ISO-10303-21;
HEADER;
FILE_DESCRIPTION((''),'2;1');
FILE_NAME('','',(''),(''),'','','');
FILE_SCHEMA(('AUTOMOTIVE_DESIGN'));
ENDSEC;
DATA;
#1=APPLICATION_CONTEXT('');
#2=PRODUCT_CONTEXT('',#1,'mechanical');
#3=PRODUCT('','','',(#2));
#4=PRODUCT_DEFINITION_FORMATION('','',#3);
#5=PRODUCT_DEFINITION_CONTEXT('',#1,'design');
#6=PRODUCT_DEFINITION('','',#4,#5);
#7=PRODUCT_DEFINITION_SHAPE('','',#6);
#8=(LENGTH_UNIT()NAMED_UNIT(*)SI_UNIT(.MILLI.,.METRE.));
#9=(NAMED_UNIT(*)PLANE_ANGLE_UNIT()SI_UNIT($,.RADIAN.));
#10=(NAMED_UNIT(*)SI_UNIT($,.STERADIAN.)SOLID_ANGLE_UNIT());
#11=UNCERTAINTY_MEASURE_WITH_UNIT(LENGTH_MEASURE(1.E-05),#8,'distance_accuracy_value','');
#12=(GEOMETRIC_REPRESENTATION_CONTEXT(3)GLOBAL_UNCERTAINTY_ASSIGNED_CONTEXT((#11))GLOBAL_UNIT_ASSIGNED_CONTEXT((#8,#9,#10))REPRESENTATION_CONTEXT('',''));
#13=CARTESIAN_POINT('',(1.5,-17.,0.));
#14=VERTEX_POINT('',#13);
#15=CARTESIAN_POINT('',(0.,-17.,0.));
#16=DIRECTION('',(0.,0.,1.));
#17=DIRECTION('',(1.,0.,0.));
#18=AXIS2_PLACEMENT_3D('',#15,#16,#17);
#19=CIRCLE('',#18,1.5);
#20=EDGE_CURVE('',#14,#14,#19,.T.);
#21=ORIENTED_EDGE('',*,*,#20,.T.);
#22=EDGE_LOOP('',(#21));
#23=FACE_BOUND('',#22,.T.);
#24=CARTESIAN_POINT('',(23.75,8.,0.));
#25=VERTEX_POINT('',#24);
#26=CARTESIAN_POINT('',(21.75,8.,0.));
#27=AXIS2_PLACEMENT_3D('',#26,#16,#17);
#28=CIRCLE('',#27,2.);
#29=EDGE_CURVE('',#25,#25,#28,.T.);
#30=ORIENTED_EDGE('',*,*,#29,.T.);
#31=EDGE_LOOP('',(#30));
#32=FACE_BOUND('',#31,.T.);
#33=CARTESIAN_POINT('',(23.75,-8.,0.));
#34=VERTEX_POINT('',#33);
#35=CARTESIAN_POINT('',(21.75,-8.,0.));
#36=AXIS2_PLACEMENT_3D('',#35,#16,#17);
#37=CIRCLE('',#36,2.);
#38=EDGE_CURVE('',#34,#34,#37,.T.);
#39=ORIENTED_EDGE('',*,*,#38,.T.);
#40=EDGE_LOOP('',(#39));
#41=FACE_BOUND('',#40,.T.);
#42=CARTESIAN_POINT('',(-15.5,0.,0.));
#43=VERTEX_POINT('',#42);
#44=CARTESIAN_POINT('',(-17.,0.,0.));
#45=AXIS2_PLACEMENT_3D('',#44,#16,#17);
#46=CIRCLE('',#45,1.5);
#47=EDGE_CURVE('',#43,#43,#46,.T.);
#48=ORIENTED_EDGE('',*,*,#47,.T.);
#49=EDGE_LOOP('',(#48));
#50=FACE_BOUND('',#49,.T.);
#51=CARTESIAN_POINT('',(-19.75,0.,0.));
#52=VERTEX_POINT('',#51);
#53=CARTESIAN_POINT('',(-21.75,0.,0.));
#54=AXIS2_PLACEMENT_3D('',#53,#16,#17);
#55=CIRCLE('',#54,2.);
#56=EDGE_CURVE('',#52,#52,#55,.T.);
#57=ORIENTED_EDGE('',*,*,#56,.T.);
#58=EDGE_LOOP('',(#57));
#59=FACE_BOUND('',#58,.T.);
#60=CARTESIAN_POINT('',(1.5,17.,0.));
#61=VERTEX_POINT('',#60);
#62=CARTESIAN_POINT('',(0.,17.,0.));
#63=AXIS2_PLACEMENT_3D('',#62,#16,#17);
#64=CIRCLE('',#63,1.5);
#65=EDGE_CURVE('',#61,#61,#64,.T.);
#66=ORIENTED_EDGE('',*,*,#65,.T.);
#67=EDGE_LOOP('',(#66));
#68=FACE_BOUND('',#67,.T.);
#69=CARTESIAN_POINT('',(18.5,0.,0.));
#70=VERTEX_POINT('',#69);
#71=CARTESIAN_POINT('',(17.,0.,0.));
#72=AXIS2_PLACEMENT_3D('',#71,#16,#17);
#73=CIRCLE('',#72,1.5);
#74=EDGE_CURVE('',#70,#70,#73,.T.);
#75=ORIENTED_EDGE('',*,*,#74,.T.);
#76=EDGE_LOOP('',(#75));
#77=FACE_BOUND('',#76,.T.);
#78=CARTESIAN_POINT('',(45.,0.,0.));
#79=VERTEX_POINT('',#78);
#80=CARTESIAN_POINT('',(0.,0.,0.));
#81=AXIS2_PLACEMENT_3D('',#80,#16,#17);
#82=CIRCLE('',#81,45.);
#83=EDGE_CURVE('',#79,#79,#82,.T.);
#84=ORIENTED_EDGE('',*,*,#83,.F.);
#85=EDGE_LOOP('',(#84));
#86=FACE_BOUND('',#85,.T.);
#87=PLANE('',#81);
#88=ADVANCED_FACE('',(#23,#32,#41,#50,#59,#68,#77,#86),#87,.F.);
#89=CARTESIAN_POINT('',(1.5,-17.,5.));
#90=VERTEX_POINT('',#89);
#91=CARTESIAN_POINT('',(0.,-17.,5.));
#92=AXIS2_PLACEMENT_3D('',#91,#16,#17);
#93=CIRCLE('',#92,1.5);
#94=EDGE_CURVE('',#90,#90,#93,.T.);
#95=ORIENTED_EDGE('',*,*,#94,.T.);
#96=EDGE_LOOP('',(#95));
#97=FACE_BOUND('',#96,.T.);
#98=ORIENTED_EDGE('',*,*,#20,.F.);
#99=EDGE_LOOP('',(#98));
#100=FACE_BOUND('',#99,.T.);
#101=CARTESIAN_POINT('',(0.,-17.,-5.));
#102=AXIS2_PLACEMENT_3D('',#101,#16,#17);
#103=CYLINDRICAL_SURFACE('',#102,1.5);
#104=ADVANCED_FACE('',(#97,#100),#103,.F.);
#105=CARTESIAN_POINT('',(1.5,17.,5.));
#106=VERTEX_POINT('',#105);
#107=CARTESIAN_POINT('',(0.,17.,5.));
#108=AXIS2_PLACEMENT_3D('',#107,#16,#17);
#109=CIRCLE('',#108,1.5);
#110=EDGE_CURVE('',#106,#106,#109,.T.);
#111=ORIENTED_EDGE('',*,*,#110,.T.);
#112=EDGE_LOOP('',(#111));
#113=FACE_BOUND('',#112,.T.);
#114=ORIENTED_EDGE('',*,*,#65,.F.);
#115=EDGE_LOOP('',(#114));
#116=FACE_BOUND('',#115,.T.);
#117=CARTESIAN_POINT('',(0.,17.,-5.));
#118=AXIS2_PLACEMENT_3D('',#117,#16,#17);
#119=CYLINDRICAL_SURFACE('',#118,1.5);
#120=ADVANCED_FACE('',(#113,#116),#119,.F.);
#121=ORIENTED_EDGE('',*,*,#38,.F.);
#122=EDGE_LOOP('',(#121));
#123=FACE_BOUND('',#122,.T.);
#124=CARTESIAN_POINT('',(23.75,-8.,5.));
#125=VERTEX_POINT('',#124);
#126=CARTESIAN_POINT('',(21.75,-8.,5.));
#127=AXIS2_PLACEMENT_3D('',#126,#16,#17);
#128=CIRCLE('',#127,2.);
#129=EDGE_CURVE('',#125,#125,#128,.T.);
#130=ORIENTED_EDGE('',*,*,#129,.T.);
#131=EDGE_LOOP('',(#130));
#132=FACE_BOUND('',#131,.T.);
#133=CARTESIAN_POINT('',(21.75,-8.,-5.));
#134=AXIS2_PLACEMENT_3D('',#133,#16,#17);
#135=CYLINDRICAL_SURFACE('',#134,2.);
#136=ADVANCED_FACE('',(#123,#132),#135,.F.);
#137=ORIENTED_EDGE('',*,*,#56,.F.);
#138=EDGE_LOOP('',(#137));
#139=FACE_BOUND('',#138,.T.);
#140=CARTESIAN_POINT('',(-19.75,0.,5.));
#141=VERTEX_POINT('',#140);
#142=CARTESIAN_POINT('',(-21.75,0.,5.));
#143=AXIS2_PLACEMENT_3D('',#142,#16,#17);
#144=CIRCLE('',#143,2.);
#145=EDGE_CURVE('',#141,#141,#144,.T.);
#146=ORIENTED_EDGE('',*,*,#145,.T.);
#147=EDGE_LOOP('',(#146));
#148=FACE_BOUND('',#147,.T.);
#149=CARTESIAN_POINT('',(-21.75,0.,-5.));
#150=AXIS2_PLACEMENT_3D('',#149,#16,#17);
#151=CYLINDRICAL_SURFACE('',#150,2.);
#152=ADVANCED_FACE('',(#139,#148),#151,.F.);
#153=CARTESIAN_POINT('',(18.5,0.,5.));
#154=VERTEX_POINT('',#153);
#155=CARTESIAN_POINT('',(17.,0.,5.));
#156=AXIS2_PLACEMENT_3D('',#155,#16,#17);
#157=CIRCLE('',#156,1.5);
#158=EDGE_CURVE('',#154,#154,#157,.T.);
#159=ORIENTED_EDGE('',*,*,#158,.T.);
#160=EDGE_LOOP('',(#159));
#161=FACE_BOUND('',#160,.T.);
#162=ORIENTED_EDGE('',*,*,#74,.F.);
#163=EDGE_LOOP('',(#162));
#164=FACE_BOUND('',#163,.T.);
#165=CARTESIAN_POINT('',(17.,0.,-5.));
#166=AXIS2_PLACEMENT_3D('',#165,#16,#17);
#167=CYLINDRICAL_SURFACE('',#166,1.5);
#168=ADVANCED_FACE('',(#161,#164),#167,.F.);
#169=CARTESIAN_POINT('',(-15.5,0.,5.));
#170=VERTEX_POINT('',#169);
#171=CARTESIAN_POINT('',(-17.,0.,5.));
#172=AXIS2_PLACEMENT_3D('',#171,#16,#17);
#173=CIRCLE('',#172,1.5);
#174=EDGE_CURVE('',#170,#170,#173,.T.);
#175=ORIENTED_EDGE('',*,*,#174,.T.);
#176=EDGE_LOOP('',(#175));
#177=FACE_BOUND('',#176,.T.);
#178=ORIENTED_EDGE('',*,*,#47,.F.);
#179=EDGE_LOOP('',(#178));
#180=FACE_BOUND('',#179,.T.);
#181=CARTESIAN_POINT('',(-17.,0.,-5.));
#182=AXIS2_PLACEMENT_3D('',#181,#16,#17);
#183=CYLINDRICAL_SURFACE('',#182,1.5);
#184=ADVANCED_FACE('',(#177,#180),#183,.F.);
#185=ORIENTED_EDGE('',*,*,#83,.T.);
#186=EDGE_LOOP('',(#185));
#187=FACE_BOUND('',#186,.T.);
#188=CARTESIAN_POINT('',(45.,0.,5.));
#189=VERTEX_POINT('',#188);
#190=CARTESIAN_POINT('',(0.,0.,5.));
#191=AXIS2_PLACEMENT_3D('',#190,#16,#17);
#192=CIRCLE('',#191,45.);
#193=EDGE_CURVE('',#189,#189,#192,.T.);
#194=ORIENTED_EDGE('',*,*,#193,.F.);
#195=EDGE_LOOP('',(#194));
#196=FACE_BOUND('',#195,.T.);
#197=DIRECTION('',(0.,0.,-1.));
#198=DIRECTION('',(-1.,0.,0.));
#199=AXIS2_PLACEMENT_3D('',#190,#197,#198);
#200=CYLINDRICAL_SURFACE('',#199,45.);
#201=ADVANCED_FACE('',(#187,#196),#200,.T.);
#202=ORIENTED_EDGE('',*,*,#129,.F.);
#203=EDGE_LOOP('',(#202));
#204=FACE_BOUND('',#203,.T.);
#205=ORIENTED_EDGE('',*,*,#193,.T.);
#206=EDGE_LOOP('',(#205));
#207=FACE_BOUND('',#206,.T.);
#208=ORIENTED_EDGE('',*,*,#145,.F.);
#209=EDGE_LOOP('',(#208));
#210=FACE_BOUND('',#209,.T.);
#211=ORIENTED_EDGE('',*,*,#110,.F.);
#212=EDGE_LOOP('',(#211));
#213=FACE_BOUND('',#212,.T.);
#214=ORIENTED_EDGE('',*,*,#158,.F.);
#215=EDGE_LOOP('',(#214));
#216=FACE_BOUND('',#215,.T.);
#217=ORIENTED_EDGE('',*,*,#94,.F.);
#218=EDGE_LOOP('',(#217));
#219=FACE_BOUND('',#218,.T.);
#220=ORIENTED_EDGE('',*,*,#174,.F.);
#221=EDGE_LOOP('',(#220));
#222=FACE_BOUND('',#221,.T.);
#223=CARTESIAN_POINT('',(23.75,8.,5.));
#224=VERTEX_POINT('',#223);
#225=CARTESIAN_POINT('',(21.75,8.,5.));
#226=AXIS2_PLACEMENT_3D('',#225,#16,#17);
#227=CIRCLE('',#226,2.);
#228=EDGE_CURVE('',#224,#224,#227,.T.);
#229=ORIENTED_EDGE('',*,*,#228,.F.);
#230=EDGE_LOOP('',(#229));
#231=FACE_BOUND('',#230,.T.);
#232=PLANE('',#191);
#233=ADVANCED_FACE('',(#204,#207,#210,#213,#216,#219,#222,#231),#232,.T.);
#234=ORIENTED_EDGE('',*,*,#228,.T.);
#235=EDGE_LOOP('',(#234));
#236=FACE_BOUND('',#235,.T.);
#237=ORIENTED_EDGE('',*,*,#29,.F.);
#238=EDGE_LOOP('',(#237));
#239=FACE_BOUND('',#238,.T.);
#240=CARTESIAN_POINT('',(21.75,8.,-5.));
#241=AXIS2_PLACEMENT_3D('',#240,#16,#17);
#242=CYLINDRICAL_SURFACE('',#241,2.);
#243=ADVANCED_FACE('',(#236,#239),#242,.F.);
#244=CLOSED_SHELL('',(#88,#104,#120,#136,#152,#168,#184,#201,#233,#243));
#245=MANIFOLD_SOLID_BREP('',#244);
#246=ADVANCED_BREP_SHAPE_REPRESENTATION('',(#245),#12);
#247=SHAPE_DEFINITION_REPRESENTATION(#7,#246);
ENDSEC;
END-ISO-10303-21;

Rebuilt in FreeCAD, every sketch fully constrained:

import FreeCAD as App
import Part
import Sketcher

V = App.Vector
Q = App.Units.Quantity

doc = App.newDocument("Part")
body = doc.addObject("PartDesign::Body", "Body")

# Sketch on XY plane
sketch1 = body.newObject("Sketcher::SketchObject", "Sketch")
sketch1.AttachmentSupport = (doc.getObject("XY_Plane"), [""])
sketch1.MapMode = "FlatFace"
sketch1.addGeometry(Part.Circle(V(0, 0, 0), V(0, 0, 1), 45), False)
sketch1.addConstraint([
    Sketcher.Constraint("Coincident", 0, 3, -1, 1),
    Sketcher.Constraint("Diameter", 0, Q("90 mm")),
])
pad1 = body.newObject("PartDesign::Pad", "Pad")
pad1.Profile = sketch1
pad1.Length = 5

# Sketch on XY plane
sketch2 = body.newObject("Sketcher::SketchObject", "Sketch001")
sketch2.AttachmentSupport = (doc.getObject("XY_Plane"), [""])
sketch2.MapMode = "FlatFace"
sketch2.AttachmentOffset = App.Placement(V(0, 0, 5), App.Rotation())
sketch2.addGeometry([
    Part.Circle(V(-21.75, 0, 0), V(0, 0, 1), 2),  # 0
    Part.Circle(V(21.75, 8, 0), V(0, 0, 1), 2),  # 1
    Part.Circle(V(21.75, -8, 0), V(0, 0, 1), 2),  # 2
    Part.Circle(V(0, 17, 0), V(0, 0, 1), 1.5),  # 3
    Part.Circle(V(17, 0, 0), V(0, 0, 1), 1.5),  # 4
    Part.Circle(V(0, -17, 0), V(0, 0, 1), 1.5),  # 5
    Part.Circle(V(-17, 0, 0), V(0, 0, 1), 1.5),  # 6
], False)
sketch2.addConstraint([
    Sketcher.Constraint("Equal", 0, 1),
    Sketcher.Constraint("Equal", 1, 2),
    Sketcher.Constraint("Equal", 3, 4),
    Sketcher.Constraint("Equal", 4, 5),
    Sketcher.Constraint("Equal", 5, 6),
    Sketcher.Constraint("Symmetric", 3, 3, 5, 3, -1, 1),
    Sketcher.Constraint("Symmetric", 4, 3, 6, 3, -1, 1),
    Sketcher.Constraint("Symmetric", 1, 3, 2, 3, -1),
    Sketcher.Constraint("PointOnObject", 0, 3, -1),
    Sketcher.Constraint("PointOnObject", 3, 3, -2),
    Sketcher.Constraint("PointOnObject", 4, 3, -1),
    Sketcher.Constraint("Diameter", 0, Q("4 mm")),
    Sketcher.Constraint("Diameter", 3, Q("3 mm")),
    Sketcher.Constraint("DistanceY", -1, 1, 1, 3, Q("8 mm")),
    Sketcher.Constraint("DistanceY", -1, 1, 3, 3, Q("17 mm")),
    Sketcher.Constraint("DistanceX", -1, 1, 4, 3, Q("17 mm")),
    Sketcher.Constraint("DistanceX", 0, 3, 1, 3, Q("43.5 mm")),
    Sketcher.Constraint("DistanceX", 0, 3, -1, 1, Q("21.75 mm")),
])
pocket1 = body.newObject("PartDesign::Pocket", "Pocket")
pocket1.Profile = sketch2
pocket1.Length = 10

doc.recompute()
